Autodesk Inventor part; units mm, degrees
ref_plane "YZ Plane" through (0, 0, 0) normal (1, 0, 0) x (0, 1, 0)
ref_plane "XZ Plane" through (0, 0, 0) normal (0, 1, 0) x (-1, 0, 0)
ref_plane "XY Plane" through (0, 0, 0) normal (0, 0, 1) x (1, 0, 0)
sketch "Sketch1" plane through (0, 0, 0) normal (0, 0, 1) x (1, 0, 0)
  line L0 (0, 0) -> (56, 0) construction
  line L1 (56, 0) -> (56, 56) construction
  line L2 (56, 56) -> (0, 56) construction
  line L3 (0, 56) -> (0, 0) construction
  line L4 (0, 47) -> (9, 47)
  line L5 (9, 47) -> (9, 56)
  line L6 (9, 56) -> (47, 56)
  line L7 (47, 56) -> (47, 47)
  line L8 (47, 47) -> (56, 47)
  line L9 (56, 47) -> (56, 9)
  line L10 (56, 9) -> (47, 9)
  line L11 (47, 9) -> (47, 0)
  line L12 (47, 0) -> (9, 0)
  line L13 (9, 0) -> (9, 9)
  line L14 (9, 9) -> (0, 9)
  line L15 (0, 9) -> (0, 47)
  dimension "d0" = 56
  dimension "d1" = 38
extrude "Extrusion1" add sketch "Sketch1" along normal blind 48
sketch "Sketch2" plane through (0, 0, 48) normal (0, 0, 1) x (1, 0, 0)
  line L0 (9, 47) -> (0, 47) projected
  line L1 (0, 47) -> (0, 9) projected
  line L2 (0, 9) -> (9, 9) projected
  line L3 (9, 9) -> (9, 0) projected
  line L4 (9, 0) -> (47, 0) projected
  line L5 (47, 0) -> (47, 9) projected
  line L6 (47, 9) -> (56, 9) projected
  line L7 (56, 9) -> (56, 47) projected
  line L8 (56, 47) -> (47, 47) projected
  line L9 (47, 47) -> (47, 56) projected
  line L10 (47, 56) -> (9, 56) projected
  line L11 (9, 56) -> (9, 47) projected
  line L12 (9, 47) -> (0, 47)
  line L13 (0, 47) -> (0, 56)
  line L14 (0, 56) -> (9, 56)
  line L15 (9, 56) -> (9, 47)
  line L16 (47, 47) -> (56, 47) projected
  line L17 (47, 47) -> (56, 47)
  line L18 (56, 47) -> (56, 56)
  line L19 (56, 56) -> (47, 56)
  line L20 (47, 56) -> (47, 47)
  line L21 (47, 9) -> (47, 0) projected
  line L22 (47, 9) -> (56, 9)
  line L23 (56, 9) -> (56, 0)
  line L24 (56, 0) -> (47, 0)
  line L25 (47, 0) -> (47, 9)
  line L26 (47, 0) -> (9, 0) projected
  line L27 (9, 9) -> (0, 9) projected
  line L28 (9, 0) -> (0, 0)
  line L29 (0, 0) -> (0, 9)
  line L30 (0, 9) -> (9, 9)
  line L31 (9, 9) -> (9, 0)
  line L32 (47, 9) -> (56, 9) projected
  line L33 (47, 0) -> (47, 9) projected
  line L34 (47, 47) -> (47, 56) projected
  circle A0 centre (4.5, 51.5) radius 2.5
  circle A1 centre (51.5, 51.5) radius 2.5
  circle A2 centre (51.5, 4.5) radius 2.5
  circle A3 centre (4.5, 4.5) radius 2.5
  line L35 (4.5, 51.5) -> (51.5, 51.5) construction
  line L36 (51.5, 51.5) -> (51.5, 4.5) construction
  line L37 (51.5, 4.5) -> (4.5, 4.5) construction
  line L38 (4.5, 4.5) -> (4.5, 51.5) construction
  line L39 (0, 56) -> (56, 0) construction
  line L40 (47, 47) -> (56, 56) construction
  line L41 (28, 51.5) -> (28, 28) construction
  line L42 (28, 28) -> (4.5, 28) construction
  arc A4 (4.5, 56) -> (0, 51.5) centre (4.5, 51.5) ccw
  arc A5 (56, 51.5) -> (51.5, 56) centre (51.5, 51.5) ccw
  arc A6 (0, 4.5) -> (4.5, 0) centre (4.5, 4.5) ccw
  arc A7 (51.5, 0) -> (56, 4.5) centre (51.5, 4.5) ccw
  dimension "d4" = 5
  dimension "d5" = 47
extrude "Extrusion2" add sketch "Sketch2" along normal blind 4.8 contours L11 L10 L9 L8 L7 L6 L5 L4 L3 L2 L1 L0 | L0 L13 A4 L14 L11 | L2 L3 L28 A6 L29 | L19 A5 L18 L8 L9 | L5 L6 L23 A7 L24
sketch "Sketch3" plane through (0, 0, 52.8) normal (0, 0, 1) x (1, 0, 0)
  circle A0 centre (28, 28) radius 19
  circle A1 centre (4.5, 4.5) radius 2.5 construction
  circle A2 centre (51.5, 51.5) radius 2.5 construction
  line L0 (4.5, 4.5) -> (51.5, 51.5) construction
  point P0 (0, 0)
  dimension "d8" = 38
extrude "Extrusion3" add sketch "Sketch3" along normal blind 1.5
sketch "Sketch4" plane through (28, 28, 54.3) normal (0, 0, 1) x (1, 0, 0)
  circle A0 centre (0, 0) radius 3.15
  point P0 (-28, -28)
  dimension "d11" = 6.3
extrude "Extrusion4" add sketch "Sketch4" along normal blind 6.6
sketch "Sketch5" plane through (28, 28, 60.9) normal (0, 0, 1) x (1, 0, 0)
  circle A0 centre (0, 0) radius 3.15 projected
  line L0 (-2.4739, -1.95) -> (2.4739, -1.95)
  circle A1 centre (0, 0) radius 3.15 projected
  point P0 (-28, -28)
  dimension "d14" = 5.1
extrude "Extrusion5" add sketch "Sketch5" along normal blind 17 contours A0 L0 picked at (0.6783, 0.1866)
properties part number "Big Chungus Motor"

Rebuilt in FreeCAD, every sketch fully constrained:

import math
import FreeCAD as App
import Part
import Sketcher
from FreeCAD import Vector


def add_polygon(sketch, points):
    """Adds a closed chain of lines whose ends are joined by coincident constraints."""
    first, n = sketch.GeometryCount, len(points)
    for a, b in zip(points, points[1:] + points[:1]):
        sketch.addGeometry(Part.LineSegment(App.Vector(*a, 0), App.Vector(*b, 0)), False)
    for i in range(n):
        sketch.addConstraint(Sketcher.Constraint("Coincident", first + i, 2, first + (i + 1) % n, 1))

doc = App.newDocument("Part")
params = doc.addObject("Spreadsheet::Sheet", "Params")
for row, (alias, value) in enumerate([
    ("sketch1_width", "38 mm"),
    ("pad1_length", "48 mm"),
    ("sketch2_diameter", "5 mm"),
    ("sketch2_width", "47 mm"),
    ("sketch2_radius", "4.5 mm"),
    ("pad2_length", "4.8 mm"),
    ("sketch3_diameter", "38 mm"),
    ("pad3_length", "1.5 mm"),
    ("sketch4_diameter", "6.3 mm"),
    ("pad4_length", "6.6 mm"),
    ("sketch5_radius", "3.15 mm"),
    ("pad5_length", "17 mm"),
], start=1):
    params.set(f"A{row}", alias)
    params.set(f"B{row}", "=" + value)
    params.setAlias(f"B{row}", alias)

body = doc.addObject("PartDesign::Body", "Body")

# Sketch on XY plane
sketch1 = body.newObject("Sketcher::SketchObject", "Sketch")
sketch1.AttachmentSupport = (doc.getObject("XY_Plane"), [""])
sketch1.MapMode = "FlatFace"
add_polygon(sketch1, [(9, 47), (0, 47), (0, 9), (9, 9), (9, 0), (47, 0), (47, 9), (56, 9), (56, 47), (47, 47), (47, 56), (9, 56)])  # lines 0-11
sketch1.addConstraint(Sketcher.Constraint("Horizontal", 0))
sketch1.addConstraint(Sketcher.Constraint("Vertical", 1))
sketch1.addConstraint(Sketcher.Constraint("Horizontal", 2))
sketch1.addConstraint(Sketcher.Constraint("Vertical", 3))
sketch1.addConstraint(Sketcher.Constraint("Horizontal", 4))
sketch1.addConstraint(Sketcher.Constraint("Vertical", 5))
sketch1.addConstraint(Sketcher.Constraint("Horizontal", 6))
sketch1.addConstraint(Sketcher.Constraint("Vertical", 7))
sketch1.addConstraint(Sketcher.Constraint("Horizontal", 8))
sketch1.addConstraint(Sketcher.Constraint("Vertical", 9))
sketch1.addConstraint(Sketcher.Constraint("Horizontal", 10))
sketch1.addConstraint(Sketcher.Constraint("Vertical", 11))
sketch1.addConstraint(Sketcher.Constraint("PointOnObject", 0, 2, -2))
sketch1.addConstraint(Sketcher.Constraint("PointOnObject", 3, 2, -1))
sketch1.addConstraint(Sketcher.Constraint("Horizontal", 2, 2, 5, 2))
sketch1.addConstraint(Sketcher.Constraint("Horizontal", 0, 2, 7, 2))
sketch1.addConstraint(Sketcher.Constraint("Vertical", 5, 2, 8, 2))
sketch1.addConstraint(Sketcher.Constraint("Vertical", 3, 2, 10, 2))
sketch1.addConstraint(Sketcher.Constraint("Equal", 2, 6))
sketch1.addConstraint(Sketcher.Constraint("Equal", 10, 1))
sketch1.addConstraint(Sketcher.Constraint("Equal", 8, 3))
sketch1.addConstraint(Sketcher.Constraint("Equal", 5, 9))
sketch1.addConstraint(Sketcher.Constraint("DistanceX", 4, 1, 4, 2, 38.0))
sketch1.addConstraint(Sketcher.Constraint("DistanceX", -1, 1, 6, 2, 56.0))
sketch1.setExpression("Constraints[34]", "Params.sketch1_width")
pad1 = body.newObject("PartDesign::Pad", "Pad")
pad1.Profile = sketch1
pad1.setExpression("Length", "Params.pad1_length")

# Sketch on XY plane
sketch2 = body.newObject("Sketcher::SketchObject", "Sketch001")
sketch2.AttachmentSupport = (doc.getObject("XY_Plane"), [""])
sketch2.MapMode = "FlatFace"
sketch2.AttachmentOffset = App.Placement(Vector(0, 0, 48), App.Rotation())
sketch2.addGeometry(Part.ArcOfCircle(Part.Circle(Vector(4.5, 51.5, 0), Vector(0, 0, 1), 4.5), math.radians(90), math.radians(180)), False)
sketch2.addGeometry(Part.LineSegment(Vector(0, 51.5, 0), Vector(0, 4.5, 0)), False)
sketch2.addGeometry(Part.ArcOfCircle(Part.Circle(Vector(4.5, 4.5, 0), Vector(0, 0, 1), 4.5), math.radians(180), math.radians(270)), False)
sketch2.addGeometry(Part.LineSegment(Vector(4.5, 0, 0), Vector(51.5, 0, 0)), False)
sketch2.addGeometry(Part.ArcOfCircle(Part.Circle(Vector(51.5, 4.5, 0), Vector(0, 0, 1), 4.5), math.radians(-90), math.radians(0)), False)
sketch2.addGeometry(Part.LineSegment(Vector(56, 4.5, 0), Vector(56, 51.5, 0)), False)
sketch2.addGeometry(Part.ArcOfCircle(Part.Circle(Vector(51.5, 51.5, 0), Vector(0, 0, 1), 4.5), math.radians(0), math.radians(90)), False)
sketch2.addGeometry(Part.LineSegment(Vector(51.5, 56, 0), Vector(4.5, 56, 0)), False)
sketch2.addGeometry(Part.Circle(Vector(4.5, 51.5, 0), Vector(0, 0, 1), 2.5), False)
sketch2.addGeometry(Part.Circle(Vector(51.5, 51.5, 0), Vector(0, 0, 1), 2.5), False)
sketch2.addGeometry(Part.Circle(Vector(51.5, 4.5, 0), Vector(0, 0, 1), 2.5), False)
sketch2.addGeometry(Part.Circle(Vector(4.5, 4.5, 0), Vector(0, 0, 1), 2.5), False)
sketch2.addConstraint(Sketcher.Constraint("Tangent", 0, 2, 1, 1))
sketch2.addConstraint(Sketcher.Constraint("Tangent", 1, 2, 2, 1))
sketch2.addConstraint(Sketcher.Constraint("Tangent", 2, 2, 3, 1))
sketch2.addConstraint(Sketcher.Constraint("Tangent", 3, 2, 4, 1))
sketch2.addConstraint(Sketcher.Constraint("Tangent", 4, 2, 5, 1))
sketch2.addConstraint(Sketcher.Constraint("Tangent", 5, 2, 6, 1))
sketch2.addConstraint(Sketcher.Constraint("Tangent", 6, 2, 7, 1))
sketch2.addConstraint(Sketcher.Constraint("Tangent", 7, 2, 0, 1))
sketch2.addConstraint(Sketcher.Constraint("Vertical", 1))
sketch2.addConstraint(Sketcher.Constraint("Horizontal", 3))
sketch2.addConstraint(Sketcher.Constraint("Vertical", 5))
sketch2.addConstraint(Sketcher.Constraint("Horizontal", 7))
sketch2.addConstraint(Sketcher.Constraint("Coincident", 8, 3, 0, 3))
sketch2.addConstraint(Sketcher.Constraint("Coincident", 9, 3, 6, 3))
sketch2.addConstraint(Sketcher.Constraint("Coincident", 10, 3, 4, 3))
sketch2.addConstraint(Sketcher.Constraint("Coincident", 11, 3, 2, 3))
sketch2.addConstraint(Sketcher.Constraint("Equal", 0, 2))
sketch2.addConstraint(Sketcher.Constraint("Equal", 2, 4))
sketch2.addConstraint(Sketcher.Constraint("Equal", 4, 6))
sketch2.addConstraint(Sketcher.Constraint("Equal", 8, 9))
sketch2.addConstraint(Sketcher.Constraint("Equal", 9, 10))
sketch2.addConstraint(Sketcher.Constraint("Equal", 10, 11))
sketch2.addConstraint(Sketcher.Constraint("PointOnObject", 0, 2, -2))
sketch2.addConstraint(Sketcher.Constraint("PointOnObject", 2, 2, -1))
sketch2.addConstraint(Sketcher.Constraint("Equal", 7, 1))
sketch2.addConstraint(Sketcher.Constraint("Diameter", 8, 5.0))
sketch2.addConstraint(Sketcher.Constraint("DistanceX", 3, 1, 3, 2, 47.0))
sketch2.addConstraint(Sketcher.Constraint("Radius", 0, 4.5))
sketch2.setExpression("Constraints[25]", "Params.sketch2_diameter")
sketch2.setExpression("Constraints[26]", "Params.sketch2_width")
sketch2.setExpression("Constraints[27]", "Params.sketch2_radius")
pad2 = body.newObject("PartDesign::Pad", "Pad001")
pad2.Profile = sketch2
pad2.setExpression("Length", "Params.pad2_length")

# Sketch on XY plane
sketch3 = body.newObject("Sketcher::SketchObject", "Sketch002")
sketch3.AttachmentSupport = (doc.getObject("XY_Plane"), [""])
sketch3.MapMode = "FlatFace"
sketch3.AttachmentOffset = App.Placement(Vector(0, 0, 52.8), App.Rotation())
sketch3.addGeometry(Part.Circle(Vector(28, 28, 0), Vector(0, 0, 1), 19), False)
sketch3.addConstraint(Sketcher.Constraint("Diameter", 0, 38.0))
sketch3.addConstraint(Sketcher.Constraint("DistanceX", -1, 1, 0, 3, 28.0))
sketch3.addConstraint(Sketcher.Constraint("DistanceY", -1, 1, 0, 3, 28.0))
sketch3.setExpression("Constraints[0]", "Params.sketch3_diameter")
pad3 = body.newObject("PartDesign::Pad", "Pad002")
pad3.Profile = sketch3
pad3.setExpression("Length", "Params.pad3_length")

# Sketch on XY plane
sketch4 = body.newObject("Sketcher::SketchObject", "Sketch003")
sketch4.AttachmentSupport = (doc.getObject("XY_Plane"), [""])
sketch4.MapMode = "FlatFace"
sketch4.AttachmentOffset = App.Placement(Vector(0, 0, 54.3), App.Rotation())
sketch4.addGeometry(Part.Circle(Vector(28, 28, 0), Vector(0, 0, 1), 3.1), False)
sketch4.addConstraint(Sketcher.Constraint("Diameter", 0, 6.3))
sketch4.addConstraint(Sketcher.Constraint("DistanceX", -1, 1, 0, 3, 28.0))
sketch4.addConstraint(Sketcher.Constraint("DistanceY", -1, 1, 0, 3, 28.0))
sketch4.setExpression("Constraints[0]", "Params.sketch4_diameter")
pad4 = body.newObject("PartDesign::Pad", "Pad003")
pad4.Profile = sketch4
pad4.setExpression("Length", "Params.pad4_length")

# Sketch on XY plane
sketch5 = body.newObject("Sketcher::SketchObject", "Sketch004")
sketch5.AttachmentSupport = (doc.getObject("XY_Plane"), [""])
sketch5.MapMode = "FlatFace"
sketch5.AttachmentOffset = App.Placement(Vector(0, 0, 60.9), App.Rotation())
sketch5.addGeometry(Part.ArcOfCircle(Part.Circle(Vector(28, 28, 0), Vector(0, 0, 1), 3.1), math.radians(-38), math.radians(218)), False)
sketch5.addGeometry(Part.LineSegment(Vector(30.5, 26.1, 0), Vector(25.5, 26.1, 0)), False)
sketch5.addConstraint(Sketcher.Constraint("Coincident", 0, 1, 1, 1))
sketch5.addConstraint(Sketcher.Constraint("Coincident", 1, 2, 0, 2))
sketch5.addConstraint(Sketcher.Constraint("Horizontal", 1))
sketch5.addConstraint(Sketcher.Constraint("Radius", 0, 3.15))
sketch5.addConstraint(Sketcher.Constraint("DistanceX", -1, 1, 0, 3, 28.0))
sketch5.addConstraint(Sketcher.Constraint("DistanceY", -1, 1, 0, 3, 28.0))
sketch5.addConstraint(Sketcher.Constraint("DistanceY", -1, 1, 0, 1, 26.05))
sketch5.setExpression("Constraints[3]", "Params.sketch5_radius")
pad5 = body.newObject("PartDesign::Pad", "Pad004")
pad5.Profile = sketch5
pad5.setExpression("Length", "Params.pad5_length")

doc.recompute()
